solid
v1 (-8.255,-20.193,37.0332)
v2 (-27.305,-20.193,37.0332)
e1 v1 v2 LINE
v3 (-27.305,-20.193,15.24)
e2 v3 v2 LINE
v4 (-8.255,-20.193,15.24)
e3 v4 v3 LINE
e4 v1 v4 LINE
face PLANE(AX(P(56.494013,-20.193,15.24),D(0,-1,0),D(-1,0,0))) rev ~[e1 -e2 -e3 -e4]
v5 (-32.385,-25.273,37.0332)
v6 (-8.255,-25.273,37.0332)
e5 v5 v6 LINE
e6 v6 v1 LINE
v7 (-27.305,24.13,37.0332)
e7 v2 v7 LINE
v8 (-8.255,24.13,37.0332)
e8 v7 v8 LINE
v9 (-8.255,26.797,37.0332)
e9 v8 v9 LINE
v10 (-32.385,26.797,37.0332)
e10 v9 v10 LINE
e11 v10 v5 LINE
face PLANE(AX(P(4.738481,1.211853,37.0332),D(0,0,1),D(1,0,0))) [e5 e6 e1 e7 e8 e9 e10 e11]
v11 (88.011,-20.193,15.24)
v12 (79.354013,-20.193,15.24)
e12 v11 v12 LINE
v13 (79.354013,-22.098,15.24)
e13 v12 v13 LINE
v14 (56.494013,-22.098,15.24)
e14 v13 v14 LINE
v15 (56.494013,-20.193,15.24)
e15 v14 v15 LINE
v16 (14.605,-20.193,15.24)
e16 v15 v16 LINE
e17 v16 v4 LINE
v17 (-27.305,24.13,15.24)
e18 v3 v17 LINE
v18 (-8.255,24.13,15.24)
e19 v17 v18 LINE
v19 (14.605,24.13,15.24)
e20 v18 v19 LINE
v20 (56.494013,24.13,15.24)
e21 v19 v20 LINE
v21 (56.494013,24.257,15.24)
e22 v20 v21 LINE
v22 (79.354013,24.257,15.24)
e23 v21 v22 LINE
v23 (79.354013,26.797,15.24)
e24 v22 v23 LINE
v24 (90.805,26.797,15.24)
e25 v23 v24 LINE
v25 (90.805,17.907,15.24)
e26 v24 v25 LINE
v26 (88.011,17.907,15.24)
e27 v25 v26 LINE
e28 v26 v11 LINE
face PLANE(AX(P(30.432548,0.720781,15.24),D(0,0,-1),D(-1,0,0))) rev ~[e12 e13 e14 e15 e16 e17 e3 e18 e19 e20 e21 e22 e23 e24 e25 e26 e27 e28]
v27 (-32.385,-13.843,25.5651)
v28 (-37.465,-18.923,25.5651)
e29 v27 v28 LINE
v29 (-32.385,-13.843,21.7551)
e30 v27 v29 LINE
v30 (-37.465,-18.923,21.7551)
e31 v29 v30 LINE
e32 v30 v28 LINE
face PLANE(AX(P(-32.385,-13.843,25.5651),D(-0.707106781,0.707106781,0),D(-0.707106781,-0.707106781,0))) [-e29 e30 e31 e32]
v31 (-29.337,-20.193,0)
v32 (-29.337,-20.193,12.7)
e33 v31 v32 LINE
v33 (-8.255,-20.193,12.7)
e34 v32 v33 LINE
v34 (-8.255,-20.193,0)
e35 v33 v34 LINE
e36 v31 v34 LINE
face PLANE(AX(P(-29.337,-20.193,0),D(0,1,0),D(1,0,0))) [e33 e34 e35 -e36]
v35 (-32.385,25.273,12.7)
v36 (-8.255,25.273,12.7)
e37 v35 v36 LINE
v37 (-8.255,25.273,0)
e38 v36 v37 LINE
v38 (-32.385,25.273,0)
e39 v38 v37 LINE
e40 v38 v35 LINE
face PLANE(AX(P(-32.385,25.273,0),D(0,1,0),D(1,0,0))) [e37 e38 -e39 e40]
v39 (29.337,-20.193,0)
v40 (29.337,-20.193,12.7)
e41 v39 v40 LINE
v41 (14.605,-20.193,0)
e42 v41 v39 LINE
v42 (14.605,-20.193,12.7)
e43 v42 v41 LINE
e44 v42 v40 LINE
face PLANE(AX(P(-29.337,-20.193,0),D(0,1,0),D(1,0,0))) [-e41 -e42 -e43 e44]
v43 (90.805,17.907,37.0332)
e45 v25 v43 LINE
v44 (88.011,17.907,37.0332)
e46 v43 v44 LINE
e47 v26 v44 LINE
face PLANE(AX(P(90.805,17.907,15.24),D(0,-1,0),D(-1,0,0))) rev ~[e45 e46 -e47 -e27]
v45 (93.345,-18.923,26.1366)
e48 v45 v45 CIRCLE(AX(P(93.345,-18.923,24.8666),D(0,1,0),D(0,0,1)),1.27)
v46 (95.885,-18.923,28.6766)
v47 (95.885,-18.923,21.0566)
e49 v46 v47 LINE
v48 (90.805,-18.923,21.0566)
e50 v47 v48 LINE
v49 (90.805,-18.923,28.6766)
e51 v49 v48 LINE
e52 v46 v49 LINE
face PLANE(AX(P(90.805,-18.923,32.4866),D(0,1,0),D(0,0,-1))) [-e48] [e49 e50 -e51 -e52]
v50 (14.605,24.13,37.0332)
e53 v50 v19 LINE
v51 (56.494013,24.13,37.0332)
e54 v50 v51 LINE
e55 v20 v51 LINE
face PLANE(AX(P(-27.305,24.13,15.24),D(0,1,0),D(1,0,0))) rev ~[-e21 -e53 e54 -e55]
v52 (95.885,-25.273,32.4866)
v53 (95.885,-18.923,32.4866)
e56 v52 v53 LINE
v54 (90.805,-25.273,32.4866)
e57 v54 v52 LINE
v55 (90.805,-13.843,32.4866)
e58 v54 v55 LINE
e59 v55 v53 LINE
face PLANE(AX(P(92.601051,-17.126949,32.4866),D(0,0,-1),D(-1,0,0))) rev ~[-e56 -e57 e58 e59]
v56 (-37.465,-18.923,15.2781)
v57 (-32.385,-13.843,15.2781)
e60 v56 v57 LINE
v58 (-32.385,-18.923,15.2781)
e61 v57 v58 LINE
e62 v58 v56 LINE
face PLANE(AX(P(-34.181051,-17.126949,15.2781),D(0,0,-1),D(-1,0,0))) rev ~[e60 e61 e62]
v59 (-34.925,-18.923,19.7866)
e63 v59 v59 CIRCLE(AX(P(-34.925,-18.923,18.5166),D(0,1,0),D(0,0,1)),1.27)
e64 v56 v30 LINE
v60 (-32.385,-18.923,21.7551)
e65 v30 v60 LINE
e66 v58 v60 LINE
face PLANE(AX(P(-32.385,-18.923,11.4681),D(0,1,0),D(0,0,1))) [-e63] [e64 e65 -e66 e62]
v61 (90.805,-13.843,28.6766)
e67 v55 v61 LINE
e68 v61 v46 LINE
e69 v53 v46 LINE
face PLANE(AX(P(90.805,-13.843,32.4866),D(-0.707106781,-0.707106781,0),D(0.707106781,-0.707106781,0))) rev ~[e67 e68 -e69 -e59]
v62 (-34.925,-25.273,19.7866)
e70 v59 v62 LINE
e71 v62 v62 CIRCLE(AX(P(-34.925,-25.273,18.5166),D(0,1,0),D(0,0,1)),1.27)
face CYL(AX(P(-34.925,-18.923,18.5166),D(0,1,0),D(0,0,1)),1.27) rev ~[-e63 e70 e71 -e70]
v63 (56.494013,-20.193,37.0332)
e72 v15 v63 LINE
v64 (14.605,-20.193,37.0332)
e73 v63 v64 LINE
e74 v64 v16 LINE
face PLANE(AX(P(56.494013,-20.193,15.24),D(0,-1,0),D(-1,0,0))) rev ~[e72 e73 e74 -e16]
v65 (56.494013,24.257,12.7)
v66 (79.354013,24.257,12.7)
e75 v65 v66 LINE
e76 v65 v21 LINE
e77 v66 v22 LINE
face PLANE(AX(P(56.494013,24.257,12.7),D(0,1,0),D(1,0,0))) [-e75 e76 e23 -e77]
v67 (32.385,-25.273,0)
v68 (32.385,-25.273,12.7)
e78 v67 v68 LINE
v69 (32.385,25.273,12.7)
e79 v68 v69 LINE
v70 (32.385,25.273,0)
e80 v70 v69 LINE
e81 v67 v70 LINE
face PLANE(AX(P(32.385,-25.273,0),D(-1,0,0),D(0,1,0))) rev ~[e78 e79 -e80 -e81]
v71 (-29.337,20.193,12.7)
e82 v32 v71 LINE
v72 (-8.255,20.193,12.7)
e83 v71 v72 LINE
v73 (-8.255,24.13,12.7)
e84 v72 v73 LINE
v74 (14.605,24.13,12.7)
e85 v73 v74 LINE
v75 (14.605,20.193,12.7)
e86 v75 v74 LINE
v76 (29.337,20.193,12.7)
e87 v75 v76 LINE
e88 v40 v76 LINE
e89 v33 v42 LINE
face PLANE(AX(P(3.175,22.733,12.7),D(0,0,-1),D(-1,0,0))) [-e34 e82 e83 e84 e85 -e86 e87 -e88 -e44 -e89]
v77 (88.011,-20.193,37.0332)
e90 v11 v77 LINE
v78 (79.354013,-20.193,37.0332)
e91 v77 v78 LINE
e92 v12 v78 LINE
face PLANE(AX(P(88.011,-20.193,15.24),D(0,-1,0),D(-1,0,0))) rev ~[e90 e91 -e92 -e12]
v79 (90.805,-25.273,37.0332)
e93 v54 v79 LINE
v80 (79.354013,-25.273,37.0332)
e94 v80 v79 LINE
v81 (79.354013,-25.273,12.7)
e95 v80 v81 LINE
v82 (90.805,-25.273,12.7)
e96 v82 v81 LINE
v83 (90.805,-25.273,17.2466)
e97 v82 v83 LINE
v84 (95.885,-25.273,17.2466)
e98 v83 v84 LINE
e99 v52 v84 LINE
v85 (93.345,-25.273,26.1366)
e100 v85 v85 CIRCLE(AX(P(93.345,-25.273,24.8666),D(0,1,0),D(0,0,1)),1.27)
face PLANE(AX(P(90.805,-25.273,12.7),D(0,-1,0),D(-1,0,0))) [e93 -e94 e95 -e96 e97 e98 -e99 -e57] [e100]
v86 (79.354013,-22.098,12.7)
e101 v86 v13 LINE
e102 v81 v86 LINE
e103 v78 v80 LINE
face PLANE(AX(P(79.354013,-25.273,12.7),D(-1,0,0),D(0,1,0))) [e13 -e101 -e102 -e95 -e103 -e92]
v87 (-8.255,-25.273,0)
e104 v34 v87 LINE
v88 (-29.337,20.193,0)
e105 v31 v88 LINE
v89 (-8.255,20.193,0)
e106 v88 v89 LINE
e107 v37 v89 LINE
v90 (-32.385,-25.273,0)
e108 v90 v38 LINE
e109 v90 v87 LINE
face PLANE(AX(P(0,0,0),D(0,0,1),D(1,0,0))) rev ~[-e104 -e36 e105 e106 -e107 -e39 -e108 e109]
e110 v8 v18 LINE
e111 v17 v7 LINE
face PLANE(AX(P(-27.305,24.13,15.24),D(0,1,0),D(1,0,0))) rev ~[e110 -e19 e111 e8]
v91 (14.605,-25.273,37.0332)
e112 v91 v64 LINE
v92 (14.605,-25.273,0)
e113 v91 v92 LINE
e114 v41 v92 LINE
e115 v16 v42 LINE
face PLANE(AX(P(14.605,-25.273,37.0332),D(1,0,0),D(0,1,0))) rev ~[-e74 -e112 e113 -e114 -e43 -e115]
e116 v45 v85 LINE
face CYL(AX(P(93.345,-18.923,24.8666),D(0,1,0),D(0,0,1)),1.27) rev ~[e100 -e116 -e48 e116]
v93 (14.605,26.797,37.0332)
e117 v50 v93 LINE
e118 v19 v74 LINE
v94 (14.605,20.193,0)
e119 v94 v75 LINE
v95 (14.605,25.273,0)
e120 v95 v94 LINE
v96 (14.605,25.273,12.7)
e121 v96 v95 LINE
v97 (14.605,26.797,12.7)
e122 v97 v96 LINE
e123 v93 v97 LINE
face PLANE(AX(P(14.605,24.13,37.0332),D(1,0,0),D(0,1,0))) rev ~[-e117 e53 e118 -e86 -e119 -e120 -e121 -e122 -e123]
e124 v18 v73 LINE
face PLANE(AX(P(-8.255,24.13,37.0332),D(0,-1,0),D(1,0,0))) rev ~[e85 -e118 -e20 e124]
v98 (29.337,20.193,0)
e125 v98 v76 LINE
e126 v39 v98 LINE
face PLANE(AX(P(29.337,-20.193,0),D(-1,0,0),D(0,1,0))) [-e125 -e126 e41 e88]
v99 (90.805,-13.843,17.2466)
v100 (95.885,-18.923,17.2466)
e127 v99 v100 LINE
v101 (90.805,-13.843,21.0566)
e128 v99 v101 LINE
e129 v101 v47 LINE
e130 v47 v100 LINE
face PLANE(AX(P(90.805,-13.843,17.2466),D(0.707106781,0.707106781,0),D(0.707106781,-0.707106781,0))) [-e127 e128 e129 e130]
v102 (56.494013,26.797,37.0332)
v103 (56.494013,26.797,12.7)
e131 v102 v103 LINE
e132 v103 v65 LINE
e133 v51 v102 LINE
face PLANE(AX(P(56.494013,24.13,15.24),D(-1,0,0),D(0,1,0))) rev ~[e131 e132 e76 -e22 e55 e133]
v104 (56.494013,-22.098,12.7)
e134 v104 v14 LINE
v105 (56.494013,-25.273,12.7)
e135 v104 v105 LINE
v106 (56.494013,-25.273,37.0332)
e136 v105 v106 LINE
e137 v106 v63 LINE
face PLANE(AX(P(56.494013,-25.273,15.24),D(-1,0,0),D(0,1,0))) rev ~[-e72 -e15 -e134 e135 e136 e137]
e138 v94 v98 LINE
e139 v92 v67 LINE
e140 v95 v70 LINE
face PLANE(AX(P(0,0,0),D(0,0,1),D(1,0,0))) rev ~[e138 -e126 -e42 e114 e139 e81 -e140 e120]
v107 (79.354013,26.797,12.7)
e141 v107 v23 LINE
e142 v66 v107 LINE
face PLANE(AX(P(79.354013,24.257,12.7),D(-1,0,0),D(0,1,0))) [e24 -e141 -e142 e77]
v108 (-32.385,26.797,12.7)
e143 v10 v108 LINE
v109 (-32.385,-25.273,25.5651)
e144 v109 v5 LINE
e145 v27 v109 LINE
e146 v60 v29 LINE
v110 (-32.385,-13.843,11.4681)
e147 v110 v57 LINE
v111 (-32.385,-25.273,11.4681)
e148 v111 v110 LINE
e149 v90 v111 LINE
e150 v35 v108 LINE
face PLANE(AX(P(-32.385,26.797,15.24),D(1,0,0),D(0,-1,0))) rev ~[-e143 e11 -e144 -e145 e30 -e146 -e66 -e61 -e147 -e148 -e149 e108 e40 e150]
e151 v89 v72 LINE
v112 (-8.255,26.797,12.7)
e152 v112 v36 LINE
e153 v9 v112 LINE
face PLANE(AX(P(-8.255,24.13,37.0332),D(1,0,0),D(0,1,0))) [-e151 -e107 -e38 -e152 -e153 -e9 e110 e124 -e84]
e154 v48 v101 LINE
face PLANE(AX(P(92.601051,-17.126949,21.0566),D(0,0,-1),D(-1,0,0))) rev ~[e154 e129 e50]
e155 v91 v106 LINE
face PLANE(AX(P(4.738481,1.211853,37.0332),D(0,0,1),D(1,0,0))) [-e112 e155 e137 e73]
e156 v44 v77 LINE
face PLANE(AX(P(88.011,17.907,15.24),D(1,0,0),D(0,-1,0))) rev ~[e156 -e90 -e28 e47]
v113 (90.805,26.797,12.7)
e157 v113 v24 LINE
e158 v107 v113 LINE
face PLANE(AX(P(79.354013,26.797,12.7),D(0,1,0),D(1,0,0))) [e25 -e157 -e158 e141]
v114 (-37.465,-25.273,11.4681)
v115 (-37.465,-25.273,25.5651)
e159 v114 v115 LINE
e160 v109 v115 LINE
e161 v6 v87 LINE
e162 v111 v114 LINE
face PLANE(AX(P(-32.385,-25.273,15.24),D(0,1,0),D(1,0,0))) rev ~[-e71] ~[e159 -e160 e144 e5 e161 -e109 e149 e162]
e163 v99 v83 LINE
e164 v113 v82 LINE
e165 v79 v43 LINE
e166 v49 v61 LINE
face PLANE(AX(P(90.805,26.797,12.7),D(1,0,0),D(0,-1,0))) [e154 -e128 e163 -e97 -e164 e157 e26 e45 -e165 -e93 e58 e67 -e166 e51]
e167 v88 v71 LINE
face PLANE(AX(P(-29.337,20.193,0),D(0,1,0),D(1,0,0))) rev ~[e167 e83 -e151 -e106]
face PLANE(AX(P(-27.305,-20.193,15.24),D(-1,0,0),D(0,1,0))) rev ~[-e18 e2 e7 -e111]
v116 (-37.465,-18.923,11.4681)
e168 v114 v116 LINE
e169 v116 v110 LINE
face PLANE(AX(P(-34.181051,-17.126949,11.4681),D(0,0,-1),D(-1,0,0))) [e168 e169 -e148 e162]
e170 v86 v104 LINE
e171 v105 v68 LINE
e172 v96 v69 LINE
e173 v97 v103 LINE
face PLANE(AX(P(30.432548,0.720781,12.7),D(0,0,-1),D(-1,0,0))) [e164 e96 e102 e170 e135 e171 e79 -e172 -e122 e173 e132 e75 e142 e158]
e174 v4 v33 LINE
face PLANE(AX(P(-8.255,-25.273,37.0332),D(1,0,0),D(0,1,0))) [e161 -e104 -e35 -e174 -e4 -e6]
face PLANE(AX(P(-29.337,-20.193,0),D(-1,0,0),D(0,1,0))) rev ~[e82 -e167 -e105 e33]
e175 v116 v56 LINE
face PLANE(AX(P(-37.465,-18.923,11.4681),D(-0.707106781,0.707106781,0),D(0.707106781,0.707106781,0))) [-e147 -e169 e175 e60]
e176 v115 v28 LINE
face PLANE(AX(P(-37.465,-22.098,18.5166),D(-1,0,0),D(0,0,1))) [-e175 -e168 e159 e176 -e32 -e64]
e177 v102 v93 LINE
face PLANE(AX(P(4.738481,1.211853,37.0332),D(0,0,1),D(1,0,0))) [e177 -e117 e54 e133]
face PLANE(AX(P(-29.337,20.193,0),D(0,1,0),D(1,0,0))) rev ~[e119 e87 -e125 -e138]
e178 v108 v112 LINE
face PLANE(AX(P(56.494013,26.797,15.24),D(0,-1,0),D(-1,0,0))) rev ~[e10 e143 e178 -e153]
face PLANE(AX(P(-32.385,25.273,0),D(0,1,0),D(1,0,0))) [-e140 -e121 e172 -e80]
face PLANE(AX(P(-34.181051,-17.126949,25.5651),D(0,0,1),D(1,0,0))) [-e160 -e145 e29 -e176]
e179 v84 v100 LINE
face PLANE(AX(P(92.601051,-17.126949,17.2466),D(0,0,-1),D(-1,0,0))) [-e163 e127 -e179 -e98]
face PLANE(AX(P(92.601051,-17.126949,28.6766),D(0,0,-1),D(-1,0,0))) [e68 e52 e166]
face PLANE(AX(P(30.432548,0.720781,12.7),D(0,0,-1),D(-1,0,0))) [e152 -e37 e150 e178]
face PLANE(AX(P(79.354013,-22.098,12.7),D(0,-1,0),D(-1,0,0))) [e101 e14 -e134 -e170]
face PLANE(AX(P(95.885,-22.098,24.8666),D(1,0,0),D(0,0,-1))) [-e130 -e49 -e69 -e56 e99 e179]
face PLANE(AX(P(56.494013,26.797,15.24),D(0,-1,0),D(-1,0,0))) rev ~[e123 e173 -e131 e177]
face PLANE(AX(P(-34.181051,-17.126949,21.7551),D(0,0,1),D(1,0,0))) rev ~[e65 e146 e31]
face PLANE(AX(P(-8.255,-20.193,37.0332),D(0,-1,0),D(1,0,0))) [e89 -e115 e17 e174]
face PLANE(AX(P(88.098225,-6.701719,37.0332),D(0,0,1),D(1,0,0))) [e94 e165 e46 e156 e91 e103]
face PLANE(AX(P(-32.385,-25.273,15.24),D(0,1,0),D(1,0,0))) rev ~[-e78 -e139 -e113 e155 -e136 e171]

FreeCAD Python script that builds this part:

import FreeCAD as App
import Part
import Sketcher
from FreeCAD import Vector
Q = App.Units.Quantity

doc = App.newDocument("Part")
body = doc.addObject("PartDesign::Body", "Body")

sketch1 = body.newObject("Sketcher::SketchObject", "Sketch")
sketch1.AttachmentSupport = (doc.getObject("XY_Plane"), [""])
sketch1.MapMode = "FlatFace"
sketch1.addGeometry(Part.LineSegment(Vector(-32.385, 25.273, 0), Vector(-32.385, -25.273, 0)), False)
sketch1.addGeometry(Part.LineSegment(Vector(-32.385, -25.273, 0), Vector(32.385, -25.273, 0)), False)
sketch1.addGeometry(Part.LineSegment(Vector(32.385, -25.273, 0), Vector(32.385, 25.273, 0)), False)
sketch1.addGeometry(Part.LineSegment(Vector(32.385, 25.273, 0), Vector(-32.385, 25.273, 0)), False)
sketch1.addGeometry(Part.LineSegment(Vector(29.337, -20.193, 0), Vector(-29.337, -20.193, 0)), False)
sketch1.addGeometry(Part.LineSegment(Vector(-29.337, -20.193, 0), Vector(-29.337, 20.193, 0)), False)
sketch1.addGeometry(Part.LineSegment(Vector(-29.337, 20.193, 0), Vector(29.337, 20.193, 0)), False)
sketch1.addGeometry(Part.LineSegment(Vector(29.337, 20.193, 0), Vector(29.337, -20.193, 0)), False)
sketch1.addConstraint(Sketcher.Constraint("Coincident", 0, 2, 1, 1))
sketch1.addConstraint(Sketcher.Constraint("Coincident", 1, 2, 2, 1))
sketch1.addConstraint(Sketcher.Constraint("Coincident", 2, 2, 3, 1))
sketch1.addConstraint(Sketcher.Constraint("Coincident", 3, 2, 0, 1))
sketch1.addConstraint(Sketcher.Constraint("Coincident", 4, 2, 5, 1))
sketch1.addConstraint(Sketcher.Constraint("Coincident", 5, 2, 6, 1))
sketch1.addConstraint(Sketcher.Constraint("Coincident", 6, 2, 7, 1))
sketch1.addConstraint(Sketcher.Constraint("Coincident", 7, 2, 4, 1))
sketch1.addConstraint(Sketcher.Constraint("Vertical", 0))
sketch1.addConstraint(Sketcher.Constraint("Horizontal", 1))
sketch1.addConstraint(Sketcher.Constraint("Vertical", 2))
sketch1.addConstraint(Sketcher.Constraint("Horizontal", 3))
sketch1.addConstraint(Sketcher.Constraint("Horizontal", 4))
sketch1.addConstraint(Sketcher.Constraint("Vertical", 5))
sketch1.addConstraint(Sketcher.Constraint("Horizontal", 6))
sketch1.addConstraint(Sketcher.Constraint("Vertical", 7))
sketch1.addConstraint(Sketcher.Constraint("Symmetric", 0, 2, 2, 2, -1, 1))
sketch1.addConstraint(Sketcher.Constraint("Symmetric", 4, 2, 6, 2, -1, 1))
sketch1.addConstraint(Sketcher.Constraint("DistanceX", 1, 1, 1, 2, Q("2.55 in")))
sketch1.addConstraint(Sketcher.Constraint("DistanceX", 4, 2, 4, 1, Q("2.31 in")))
sketch1.addConstraint(Sketcher.Constraint("DistanceY", 0, 2, 0, 1, Q("1.99 in")))
sketch1.addConstraint(Sketcher.Constraint("DistanceY", 5, 1, 5, 2, Q("1.59 in")))
pad1 = body.newObject("PartDesign::Pad", "Pad")
pad1.Profile = sketch1
pad1.Length = Q("0.5 in")

sketch2 = body.newObject("Sketcher::SketchObject", "Sketch001")
sketch2.AttachmentSupport = (doc.getObject("XY_Plane"), [""])
sketch2.MapMode = "FlatFace"
sketch2.AttachmentOffset = App.Placement(Vector(0, 0, 0.5 * 25.4), App.Rotation())
sketch2.addGeometry(Part.LineSegment(Vector(79.354013, -22.098, 0), Vector(79.354013, -25.273, 0)), False)
sketch2.addGeometry(Part.LineSegment(Vector(79.354013, -25.273, 0), Vector(90.805, -25.273, 0)), False)
sketch2.addGeometry(Part.LineSegment(Vector(90.805, -25.273, 0), Vector(90.805, 26.797, 0)), False)
sketch2.addGeometry(Part.LineSegment(Vector(90.805, 26.797, 0), Vector(79.354013, 26.797, 0)), False)
sketch2.addGeometry(Part.LineSegment(Vector(79.354013, 26.797, 0), Vector(79.354013, 24.257, 0)), False)
sketch2.addGeometry(Part.LineSegment(Vector(79.354013, 24.257, 0), Vector(56.494013, 24.257, 0)), False)
sketch2.addGeometry(Part.LineSegment(Vector(56.494013, 24.257, 0), Vector(56.494013, 26.797, 0)), False)
sketch2.addGeometry(Part.LineSegment(Vector(56.494013, 26.797, 0), Vector(-32.385, 26.797, 0)), False)
sketch2.addGeometry(Part.LineSegment(Vector(-32.385, 26.797, 0), Vector(-32.385, -25.273, 0)), False)
sketch2.addGeometry(Part.LineSegment(Vector(-32.385, -25.273, 0), Vector(56.494013, -25.273, 0)), False)
sketch2.addGeometry(Part.LineSegment(Vector(56.494013, -25.273, 0), Vector(56.494013, -22.098, 0)), False)
sketch2.addGeometry(Part.LineSegment(Vector(56.494013, -22.098, 0), Vector(79.354013, -22.098, 0)), False)
sketch2.addConstraint(Sketcher.Constraint("Coincident", 0, 2, 1, 1))
sketch2.addConstraint(Sketcher.Constraint("Coincident", 1, 2, 2, 1))
sketch2.addConstraint(Sketcher.Constraint("Coincident", 2, 2, 3, 1))
sketch2.addConstraint(Sketcher.Constraint("Coincident", 3, 2, 4, 1))
sketch2.addConstraint(Sketcher.Constraint("Coincident", 4, 2, 5, 1))
sketch2.addConstraint(Sketcher.Constraint("Coincident", 5, 2, 6, 1))
sketch2.addConstraint(Sketcher.Constraint("Coincident", 6, 2, 7, 1))
sketch2.addConstraint(Sketcher.Constraint("Coincident", 7, 2, 8, 1))
sketch2.addConstraint(Sketcher.Constraint("Coincident", 8, 2, 9, 1))
sketch2.addConstraint(Sketcher.Constraint("Coincident", 9, 2, 10, 1))
sketch2.addConstraint(Sketcher.Constraint("Coincident", 10, 2, 11, 1))
sketch2.addConstraint(Sketcher.Constraint("Coincident", 11, 2, 0, 1))
sketch2.addConstraint(Sketcher.Constraint("Vertical", 0))
sketch2.addConstraint(Sketcher.Constraint("Horizontal", 1))
sketch2.addConstraint(Sketcher.Constraint("Vertical", 2))
sketch2.addConstraint(Sketcher.Constraint("Horizontal", 3))
sketch2.addConstraint(Sketcher.Constraint("Vertical", 4))
sketch2.addConstraint(Sketcher.Constraint("Horizontal", 5))
sketch2.addConstraint(Sketcher.Constraint("Vertical", 6))
sketch2.addConstraint(Sketcher.Constraint("Horizontal", 7))
sketch2.addConstraint(Sketcher.Constraint("Vertical", 8))
sketch2.addConstraint(Sketcher.Constraint("Horizontal", 9))
sketch2.addConstraint(Sketcher.Constraint("Vertical", 10))
sketch2.addConstraint(Sketcher.Constraint("Horizontal", 11))
sketch2.addConstraint(Sketcher.Constraint("Horizontal", 3, 2, 6, 2))
sketch2.addConstraint(Sketcher.Constraint("Horizontal", 1, 2, 8, 2))
sketch2.addConstraint(Sketcher.Constraint("Vertical", 0, 2, 3, 2))
sketch2.addConstraint(Sketcher.Constraint("Vertical", 6, 2, 9, 2))
sketch2.addConstraint(Sketcher.Constraint("DistanceX", 5, 2, 5, 1, Q("0.9 in")))
sketch2.addConstraint(Sketcher.Constraint("DistanceY", 4, 2, 4, 1, Q("0.1 in")))
sketch2.addConstraint(Sketcher.Constraint("DistanceY", 2, 1, 2, 2, Q("2.05 in")))
sketch2.addConstraint(Sketcher.Constraint("DistanceY", 0, 2, 0, 1, Q("0.125 in")))
sketch2.addConstraint(Sketcher.Constraint("DistanceY", 10, 2, -1, 1, Q("0.87 in")))
sketch2.addConstraint(Sketcher.Constraint("DistanceX", 7, 2, 2, 2, Q("4.85 in")))
sketch2.addConstraint(Sketcher.Constraint("DistanceX", -1, 1, 1, 2, Q("3.575 in")))
sketch2.addConstraint(Sketcher.Constraint("DistanceX", 1, 1, 1, 2, 11.450987))
pad2 = body.newObject("PartDesign::Pad", "Pad001")
pad2.Profile = sketch2
pad2.Length = Q("0.1 in")

sketch3 = body.newObject("Sketcher::SketchObject", "Sketch002")
sketch3.AttachmentSupport = (doc.getObject("XY_Plane"), [""])
sketch3.MapMode = "FlatFace"
sketch3.AttachmentOffset = App.Placement(Vector(0, 0, 0.6 * 25.4), App.Rotation())
sketch3.addGeometry(Part.LineSegment(Vector(-32.385, 26.797, 0), Vector(-32.385, -25.273, 0)), False)
sketch3.addGeometry(Part.LineSegment(Vector(-32.385, -25.273, 0), Vector(56.494013, -25.273, 0)), False)
sketch3.addGeometry(Part.LineSegment(Vector(56.494013, -25.273, 0), Vector(56.494013, -20.193, 0)), False)
sketch3.addGeometry(Part.LineSegment(Vector(56.494013, -20.193, 0), Vector(-27.305, -20.193, 0)), False)
sketch3.addGeometry(Part.LineSegment(Vector(-27.305, -20.193, 0), Vector(-27.305, 24.13, 0)), False)
sketch3.addGeometry(Part.LineSegment(Vector(-27.305, 24.13, 0), Vector(56.494013, 24.13, 0)), False)
sketch3.addGeometry(Part.LineSegment(Vector(56.494013, 24.13, 0), Vector(56.494013, 26.797, 0)), False)
sketch3.addGeometry(Part.LineSegment(Vector(56.494013, 26.797, 0), Vector(-32.385, 26.797, 0)), False)
sketch3.addGeometry(Part.LineSegment(Vector(79.354013, -20.193, 0), Vector(79.354013, -25.273, 0)), False)
sketch3.addGeometry(Part.LineSegment(Vector(79.354013, -25.273, 0), Vector(90.805, -25.273, 0)), False)
sketch3.addGeometry(Part.LineSegment(Vector(90.805, -25.273, 0), Vector(90.805, 17.907, 0)), False)
sketch3.addGeometry(Part.LineSegment(Vector(90.805, 17.907, 0), Vector(88.011, 17.907, 0)), False)
sketch3.addGeometry(Part.LineSegment(Vector(88.011, 17.907, 0), Vector(88.011, -20.193, 0)), False)
sketch3.addGeometry(Part.LineSegment(Vector(88.011, -20.193, 0), Vector(79.354013, -20.193, 0)), False)
sketch3.addConstraint(Sketcher.Constraint("Coincident", 0, 2, 1, 1))
sketch3.addConstraint(Sketcher.Constraint("Coincident", 1, 2, 2, 1))
sketch3.addConstraint(Sketcher.Constraint("Coincident", 2, 2, 3, 1))
sketch3.addConstraint(Sketcher.Constraint("Coincident", 3, 2, 4, 1))
sketch3.addConstraint(Sketcher.Constraint("Coincident", 4, 2, 5, 1))
sketch3.addConstraint(Sketcher.Constraint("Coincident", 5, 2, 6, 1))
sketch3.addConstraint(Sketcher.Constraint("Coincident", 6, 2, 7, 1))
sketch3.addConstraint(Sketcher.Constraint("Coincident", 7, 2, 0, 1))
sketch3.addConstraint(Sketcher.Constraint("Coincident", 8, 2, 9, 1))
sketch3.addConstraint(Sketcher.Constraint("Coincident", 9, 2, 10, 1))
sketch3.addConstraint(Sketcher.Constraint("Coincident", 10, 2, 11, 1))
sketch3.addConstraint(Sketcher.Constraint("Coincident", 11, 2, 12, 1))
sketch3.addConstraint(Sketcher.Constraint("Coincident", 12, 2, 13, 1))
sketch3.addConstraint(Sketcher.Constraint("Coincident", 13, 2, 8, 1))
sketch3.addConstraint(Sketcher.Constraint("Vertical", 0))
sketch3.addConstraint(Sketcher.Constraint("Horizontal", 1))
sketch3.addConstraint(Sketcher.Constraint("Vertical", 2))
sketch3.addConstraint(Sketcher.Constraint("Horizontal", 3))
sketch3.addConstraint(Sketcher.Constraint("Vertical", 4))
sketch3.addConstraint(Sketcher.Constraint("Horizontal", 5))
sketch3.addConstraint(Sketcher.Constraint("Vertical", 6))
sketch3.addConstraint(Sketcher.Constraint("Horizontal", 7))
sketch3.addConstraint(Sketcher.Constraint("Vertical", 8))
sketch3.addConstraint(Sketcher.Constraint("Horizontal", 9))
sketch3.addConstraint(Sketcher.Constraint("Vertical", 10))
sketch3.addConstraint(Sketcher.Constraint("Horizontal", 11))
sketch3.addConstraint(Sketcher.Constraint("Vertical", 12))
sketch3.addConstraint(Sketcher.Constraint("Horizontal", 13))
sketch3.addConstraint(Sketcher.Constraint("Horizontal", 1, 2, 8, 2))
sketch3.addConstraint(Sketcher.Constraint("Horizontal", 3, 2, 12, 2))
sketch3.addConstraint(Sketcher.Constraint("Vertical", 2, 2, 5, 2))
sketch3.addConstraint(Sketcher.Constraint("DistanceY", 2, 1, 2, 2, Q("0.2 in")))
sketch3.addConstraint(Sketcher.Constraint("DistanceY", 10, 1, 10, 2, Q("1.7 in")))
sketch3.addConstraint(Sketcher.Constraint("DistanceX", 11, 2, 11, 1, Q("0.11 in")))
sketch3.addConstraint(Sketcher.Constraint("DistanceY", 0, 2, 0, 1, Q("2.05 in")))
sketch3.addConstraint(Sketcher.Constraint("DistanceX", 0, 2, 3, 2, Q("0.2 in")))
sketch3.addConstraint(Sketcher.Constraint("DistanceX", 1, 2, 8, 2, Q("0.9 in")))
sketch3.addConstraint(Sketcher.Constraint("DistanceY", 4, 1, 4, 2, Q("1.745 in")))
sketch3.addConstraint(Sketcher.Constraint("DistanceY", -1, 1, 4, 2, Q("0.95 in")))
sketch3.addConstraint(Sketcher.Constraint("DistanceX", 0, 2, -1, 1, Q("1.275 in")))
sketch3.addConstraint(Sketcher.Constraint("DistanceX", -1, 1, 9, 2, Q("3.575 in")))
sketch3.addConstraint(Sketcher.Constraint("DistanceX", 1, 1, 1, 2, 88.879013))
pad3 = body.newObject("PartDesign::Pad", "Pad002")
pad3.Profile = sketch3
pad3.Length = Q("0.858 in")

sketch4 = body.newObject("Sketcher::SketchObject", "Sketch003")
sketch4.AttachmentSupport = (doc.getObject("XY_Plane"), [""])
sketch4.MapMode = "FlatFace"
sketch4.AttachmentOffset = App.Placement(Vector(0, 0, 1.458 * 25.4), App.Rotation())
sketch4.addGeometry(Part.LineSegment(Vector(-8.255, 26.797, 0), Vector(-8.255, 24.13, 0)), False)
sketch4.addGeometry(Part.LineSegment(Vector(-8.255, 24.13, 0), Vector(14.605, 24.13, 0)), False)
sketch4.addGeometry(Part.LineSegment(Vector(14.605, 24.13, 0), Vector(14.605, 26.797, 0)), False)
sketch4.addGeometry(Part.LineSegment(Vector(14.605, 26.797, 0), Vector(-8.255, 26.797, 0)), False)
sketch4.addGeometry(Part.LineSegment(Vector(-8.255, -20.193, 0), Vector(-8.255, -25.273, 0)), False)
sketch4.addGeometry(Part.LineSegment(Vector(-8.255, -25.273, 0), Vector(14.605, -25.273, 0)), False)
sketch4.addGeometry(Part.LineSegment(Vector(14.605, -25.273, 0), Vector(14.605, -20.193, 0)), False)
sketch4.addGeometry(Part.LineSegment(Vector(14.605, -20.193, 0), Vector(-8.255, -20.193, 0)), False)
sketch4.addConstraint(Sketcher.Constraint("Coincident", 0, 2, 1, 1))
sketch4.addConstraint(Sketcher.Constraint("Coincident", 1, 2, 2, 1))
sketch4.addConstraint(Sketcher.Constraint("Coincident", 2, 2, 3, 1))
sketch4.addConstraint(Sketcher.Constraint("Coincident", 3, 2, 0, 1))
sketch4.addConstraint(Sketcher.Constraint("Coincident", 4, 2, 5, 1))
sketch4.addConstraint(Sketcher.Constraint("Coincident", 5, 2, 6, 1))
sketch4.addConstraint(Sketcher.Constraint("Coincident", 6, 2, 7, 1))
sketch4.addConstraint(Sketcher.Constraint("Coincident", 7, 2, 4, 1))
sketch4.addConstraint(Sketcher.Constraint("Vertical", 0))
sketch4.addConstraint(Sketcher.Constraint("Horizontal", 1))
sketch4.addConstraint(Sketcher.Constraint("Vertical", 2))
sketch4.addConstraint(Sketcher.Constraint("Horizontal", 3))
sketch4.addConstraint(Sketcher.Constraint("Vertical", 4))
sketch4.addConstraint(Sketcher.Constraint("Horizontal", 5))
sketch4.addConstraint(Sketcher.Constraint("Vertical", 6))
sketch4.addConstraint(Sketcher.Constraint("Horizontal", 7))
sketch4.addConstraint(Sketcher.Constraint("Vertical", 3, 2, 4, 2))
sketch4.addConstraint(Sketcher.Constraint("Vertical", 2, 2, 5, 2))
sketch4.addConstraint(Sketcher.Constraint("DistanceX", 1, 1, 1, 2, Q("0.9 in")))
sketch4.addConstraint(Sketcher.Constraint("DistanceY", 4, 2, 4, 1, Q("0.2 in")))
sketch4.addConstraint(Sketcher.Constraint("DistanceY", 0, 2, 0, 1, Q("0.105 in")))
sketch4.addConstraint(Sketcher.Constraint("DistanceY", -1, 1, 0, 2, Q("0.95 in")))
sketch4.addConstraint(Sketcher.Constraint("DistanceY", 4, 2, 3, 2, Q("2.05 in")))
sketch4.addConstraint(Sketcher.Constraint("DistanceX", 0, 2, -1, 1, Q("0.325 in")))
pocket1 = body.newObject("PartDesign::Pocket", "Pocket")
pocket1.Profile = sketch4
pocket1.Type = "ThroughAll"

sketch5 = body.newObject("Sketcher::SketchObject", "Sketch004")
sketch5.AttachmentSupport = (doc.getObject("XY_Plane"), [""])
sketch5.MapMode = "FlatFace"
sketch5.addGeometry(Part.LineSegment(Vector(14.605, 25.273, 0), Vector(14.605, 20.193, 0)), False)
sketch5.addGeometry(Part.LineSegment(Vector(14.605, 20.193, 0), Vector(-8.255, 20.193, 0)), False)
sketch5.addGeometry(Part.LineSegment(Vector(-8.255, 20.193, 0), Vector(-8.255, 25.273, 0)), False)
sketch5.addGeometry(Part.LineSegment(Vector(-8.255, 25.273, 0), Vector(14.605, 25.273, 0)), False)
sketch5.addGeometry(Part.LineSegment(Vector(14.605, -20.193, 0), Vector(14.605, -21.336, 0)), False)
sketch5.addGeometry(Part.LineSegment(Vector(14.605, -21.336, 0), Vector(-8.255, -21.336, 0)), False)
sketch5.addGeometry(Part.LineSegment(Vector(-8.255, -21.336, 0), Vector(-8.255, -20.193, 0)), False)
sketch5.addGeometry(Part.LineSegment(Vector(-8.255, -20.193, 0), Vector(14.605, -20.193, 0)), False)
sketch5.addConstraint(Sketcher.Constraint("Coincident", 0, 2, 1, 1))
sketch5.addConstraint(Sketcher.Constraint("Coincident", 1, 2, 2, 1))
sketch5.addConstraint(Sketcher.Constraint("Coincident", 2, 2, 3, 1))
sketch5.addConstraint(Sketcher.Constraint("Coincident", 3, 2, 0, 1))
sketch5.addConstraint(Sketcher.Constraint("Coincident", 4, 2, 5, 1))
sketch5.addConstraint(Sketcher.Constraint("Coincident", 5, 2, 6, 1))
sketch5.addConstraint(Sketcher.Constraint("Coincident", 6, 2, 7, 1))
sketch5.addConstraint(Sketcher.Constraint("Coincident", 7, 2, 4, 1))
sketch5.addConstraint(Sketcher.Constraint("Vertical", 0))
sketch5.addConstraint(Sketcher.Constraint("Horizontal", 1))
sketch5.addConstraint(Sketcher.Constraint("Vertical", 2))
sketch5.addConstraint(Sketcher.Constraint("Horizontal", 3))
sketch5.addConstraint(Sketcher.Constraint("Vertical", 4))
sketch5.addConstraint(Sketcher.Constraint("Horizontal", 5))
sketch5.addConstraint(Sketcher.Constraint("Vertical", 6))
sketch5.addConstraint(Sketcher.Constraint("Horizontal", 7))
sketch5.addConstraint(Sketcher.Constraint("Symmetric", 1, 2, 6, 2, -1))
sketch5.addConstraint(Sketcher.Constraint("Vertical", 3, 2, 4, 2))
sketch5.addConstraint(Sketcher.Constraint("DistanceX", 1, 2, 1, 1, Q("0.9 in")))
sketch5.addConstraint(Sketcher.Constraint("DistanceY", 0, 2, 0, 1, Q("0.2 in")))
sketch5.addConstraint(Sketcher.Constraint("DistanceY", 4, 2, 4, 1, Q("0.045 in")))
sketch5.addConstraint(Sketcher.Constraint("DistanceY", 4, 2, -1, 1, Q("0.84 in")))
sketch5.addConstraint(Sketcher.Constraint("DistanceX", -1, 1, 0, 2, Q("0.575 in")))
pocket2 = body.newObject("PartDesign::Pocket", "Pocket001")
pocket2.Profile = sketch5
pocket2.Length = Q("0.5 in")
pocket2.Reversed = True

sketch6 = body.newObject("Sketcher::SketchObject", "Sketch005")
sketch6.AttachmentSupport = (doc.getObject("YZ_Plane"), [""])
sketch6.MapMode = "FlatFace"
sketch6.AttachmentOffset = App.Placement(Vector(0, 0, -1.275 * 25.4), App.Rotation())
sketch6.addGeometry(Part.LineSegment(Vector(-18.923, 11.4681, 0), Vector(-25.273, 11.4681, 0)), False)
sketch6.addGeometry(Part.LineSegment(Vector(-25.273, 11.4681, 0), Vector(-25.273, 25.5651, 0)), False)
sketch6.addGeometry(Part.LineSegment(Vector(-25.273, 25.5651, 0), Vector(-18.923, 25.5651, 0)), False)
sketch6.addGeometry(Part.LineSegment(Vector(-18.923, 25.5651, 0), Vector(-18.923, 11.4681, 0)), False)
sketch6.addConstraint(Sketcher.Constraint("Coincident", 0, 2, 1, 1))
sketch6.addConstraint(Sketcher.Constraint("Coincident", 1, 2, 2, 1))
sketch6.addConstraint(Sketcher.Constraint("Coincident", 2, 2, 3, 1))
sketch6.addConstraint(Sketcher.Constraint("Coincident", 3, 2, 0, 1))
sketch6.addConstraint(Sketcher.Constraint("Horizontal", 0))
sketch6.addConstraint(Sketcher.Constraint("Vertical", 1))
sketch6.addConstraint(Sketcher.Constraint("Horizontal", 2))
sketch6.addConstraint(Sketcher.Constraint("Vertical", 3))
sketch6.addConstraint(Sketcher.Constraint("DistanceX", 0, 2, 0, 1, Q("0.25 in")))
sketch6.addConstraint(Sketcher.Constraint("DistanceY", 1, 1, 1, 2, Q("0.555 in")))
sketch6.addConstraint(Sketcher.Constraint("DistanceX", 0, 2, -1, 1, Q("0.995 in")))
sketch6.addConstraint(Sketcher.Constraint("DistanceY", -1, 1, 0, 2, Q("0.4515 in")))
pad4 = body.newObject("PartDesign::Pad", "Pad003")
pad4.Profile = sketch6
pad4.Length = Q("0.2 in")
pad4.Reversed = True

sketch7 = body.newObject("Sketcher::SketchObject", "Sketch006")
sketch7.AttachmentSupport = (doc.getObject("XY_Plane"), [""])
sketch7.MapMode = "FlatFace"
sketch7.AttachmentOffset = App.Placement(Vector(0, 0, 1.0065 * 25.4), App.Rotation())
sketch7.addGeometry(Part.LineSegment(Vector(-37.465, -18.923, 0), Vector(-32.385, -18.923, 0)), False)
sketch7.addGeometry(Part.LineSegment(Vector(-32.385, -18.923, 0), Vector(-32.385, -13.843, 0)), False)
sketch7.addGeometry(Part.LineSegment(Vector(-32.385, -13.843, 0), Vector(-37.465, -18.923, 0)), False)
sketch7.addConstraint(Sketcher.Constraint("Coincident", 0, 2, 1, 1))
sketch7.addConstraint(Sketcher.Constraint("Coincident", 1, 2, 2, 1))
sketch7.addConstraint(Sketcher.Constraint("Coincident", 2, 2, 0, 1))
sketch7.addConstraint(Sketcher.Constraint("Horizontal", 0))
sketch7.addConstraint(Sketcher.Constraint("Vertical", 1))
sketch7.addConstraint(Sketcher.Constraint("Equal", 0, 1))
sketch7.addConstraint(Sketcher.Constraint("DistanceX", 0, 1, 0, 2, Q("0.2 in")))
sketch7.addConstraint(Sketcher.Constraint("DistanceX", 0, 2, -1, 1, Q("1.275 in")))
sketch7.addConstraint(Sketcher.Constraint("DistanceY", 0, 2, -1, 1, Q("0.745 in")))
pad5 = body.newObject("PartDesign::Pad", "Pad004")
pad5.Profile = sketch7
pad5.Length = Q("0.15 in")
pad5.Reversed = True

sketch8 = body.newObject("Sketcher::SketchObject", "Sketch007")
sketch8.AttachmentSupport = (doc.getObject("XZ_Plane"), [""])
sketch8.MapMode = "FlatFace"
sketch8.AttachmentOffset = App.Placement(Vector(0, 0, 0.745 * 25.4), App.Rotation())
sketch8.addGeometry(Part.Circle(Vector(-34.925, 18.5166, 0), Vector(0, 0, 1), 1.27), False)
sketch8.addConstraint(Sketcher.Constraint("Diameter", 0, Q("0.1 in")))
sketch8.addConstraint(Sketcher.Constraint("DistanceX", 0, 3, -1, 1, Q("1.375 in")))
sketch8.addConstraint(Sketcher.Constraint("DistanceY", -1, 1, 0, 3, Q("0.729 in")))
pocket3 = body.newObject("PartDesign::Pocket", "Pocket002")
pocket3.Profile = sketch8
pocket3.Type = "ThroughAll"
pocket3.Reversed = True

sketch9 = body.newObject("Sketcher::SketchObject", "Sketch008")
sketch9.AttachmentSupport = (doc.getObject("XY_Plane"), [""])
sketch9.MapMode = "FlatFace"
sketch9.AttachmentOffset = App.Placement(Vector(0, 0, 0.4515 * 25.4), App.Rotation())
sketch9.addGeometry(Part.LineSegment(Vector(-32.385, -13.843, 0), Vector(-32.385, -18.923, 0)), False)
sketch9.addGeometry(Part.LineSegment(Vector(-32.385, -18.923, 0), Vector(-37.465, -18.923, 0)), False)
sketch9.addGeometry(Part.LineSegment(Vector(-37.465, -18.923, 0), Vector(-32.385, -13.843, 0)), False)
sketch9.addConstraint(Sketcher.Constraint("Coincident", 0, 2, 1, 1))
sketch9.addConstraint(Sketcher.Constraint("Coincident", 1, 2, 2, 1))
sketch9.addConstraint(Sketcher.Constraint("Coincident", 2, 2, 0, 1))
sketch9.addConstraint(Sketcher.Constraint("Vertical", 0))
sketch9.addConstraint(Sketcher.Constraint("Horizontal", 1))
sketch9.addConstraint(Sketcher.Constraint("Equal", 1, 0))
sketch9.addConstraint(Sketcher.Constraint("DistanceX", 1, 2, 1, 1, Q("0.2 in")))
sketch9.addConstraint(Sketcher.Constraint("DistanceX", 0, 2, -1, 1, Q("1.275 in")))
sketch9.addConstraint(Sketcher.Constraint("DistanceY", 0, 2, -1, 1, Q("0.745 in")))
pad6 = body.newObject("PartDesign::Pad", "Pad005")
pad6.Profile = sketch9
pad6.Length = Q("0.15 in")

sketch10 = body.newObject("Sketcher::SketchObject", "Sketch009")
sketch10.AttachmentSupport = (doc.getObject("YZ_Plane"), [""])
sketch10.MapMode = "FlatFace"
sketch10.AttachmentOffset = App.Placement(Vector(0, 0, 3.575 * 25.4), App.Rotation())
sketch10.addGeometry(Part.LineSegment(Vector(-18.923, 32.4866, 0), Vector(-25.273, 32.4866, 0)), False)
sketch10.addGeometry(Part.LineSegment(Vector(-25.273, 32.4866, 0), Vector(-25.273, 17.2466, 0)), False)
sketch10.addGeometry(Part.LineSegment(Vector(-25.273, 17.2466, 0), Vector(-18.923, 17.2466, 0)), False)
sketch10.addGeometry(Part.LineSegment(Vector(-18.923, 17.2466, 0), Vector(-18.923, 32.4866, 0)), False)
sketch10.addConstraint(Sketcher.Constraint("Coincident", 0, 2, 1, 1))
sketch10.addConstraint(Sketcher.Constraint("Coincident", 1, 2, 2, 1))
sketch10.addConstraint(Sketcher.Constraint("Coincident", 2, 2, 3, 1))
sketch10.addConstraint(Sketcher.Constraint("Coincident", 3, 2, 0, 1))
sketch10.addConstraint(Sketcher.Constraint("Horizontal", 0))
sketch10.addConstraint(Sketcher.Constraint("Vertical", 1))
sketch10.addConstraint(Sketcher.Constraint("Horizontal", 2))
sketch10.addConstraint(Sketcher.Constraint("Vertical", 3))
sketch10.addConstraint(Sketcher.Constraint("DistanceY", 1, 2, 1, 1, Q("0.6 in")))
sketch10.addConstraint(Sketcher.Constraint("DistanceX", 0, 2, 0, 1, Q("0.25 in")))
sketch10.addConstraint(Sketcher.Constraint("DistanceX", 0, 2, -1, 1, Q("0.995 in")))
sketch10.addConstraint(Sketcher.Constraint("DistanceY", -1, 1, 0, 2, Q("1.279 in")))
pad7 = body.newObject("PartDesign::Pad", "Pad006")
pad7.Profile = sketch10
pad7.Length = Q("0.2 in")

sketch11 = body.newObject("Sketcher::SketchObject", "Sketch010")
sketch11.AttachmentSupport = (doc.getObject("XZ_Plane"), [""])
sketch11.MapMode = "FlatFace"
sketch11.AttachmentOffset = App.Placement(Vector(0, 0, 0.745 * 25.4), App.Rotation())
sketch11.addGeometry(Part.Circle(Vector(93.345, 24.8666, 0), Vector(0, 0, 1), 1.27), False)
sketch11.addConstraint(Sketcher.Constraint("Diameter", 0, Q("0.1 in")))
sketch11.addConstraint(Sketcher.Constraint("DistanceX", -1, 1, 0, 3, Q("3.675 in")))
sketch11.addConstraint(Sketcher.Constraint("DistanceY", -1, 1, 0, 3, Q("0.979 in")))
pocket4 = body.newObject("PartDesign::Pocket", "Pocket003")
pocket4.Profile = sketch11
pocket4.Type = "ThroughAll"
pocket4.Reversed = True

sketch12 = body.newObject("Sketcher::SketchObject", "Sketch011")
sketch12.AttachmentSupport = (doc.getObject("XY_Plane"), [""])
sketch12.MapMode = "FlatFace"
sketch12.AttachmentOffset = App.Placement(Vector(0, 0, 1.279 * 25.4), App.Rotation())
sketch12.addGeometry(Part.LineSegment(Vector(90.805, -18.923, 0), Vector(95.885, -18.923, 0)), False)
sketch12.addGeometry(Part.LineSegment(Vector(95.885, -18.923, 0), Vector(90.805, -13.843, 0)), False)
sketch12.addGeometry(Part.LineSegment(Vector(90.805, -13.843, 0), Vector(90.805, -18.923, 0)), False)
sketch12.addConstraint(Sketcher.Constraint("Coincident", 0, 2, 1, 1))
sketch12.addConstraint(Sketcher.Constraint("Coincident", 1, 2, 2, 1))
sketch12.addConstraint(Sketcher.Constraint("Coincident", 2, 2, 0, 1))
sketch12.addConstraint(Sketcher.Constraint("Horizontal", 0))
sketch12.addConstraint(Sketcher.Constraint("Vertical", 2))
sketch12.addConstraint(Sketcher.Constraint("Equal", 0, 2))
sketch12.addConstraint(Sketcher.Constraint("DistanceX", 0, 1, 0, 2, Q("0.2 in")))
sketch12.addConstraint(Sketcher.Constraint("DistanceX", -1, 1, 0, 2, Q("3.775 in")))
sketch12.addConstraint(Sketcher.Constraint("DistanceY", 0, 2, -1, 1, Q("0.745 in")))
pad8 = body.newObject("PartDesign::Pad", "Pad007")
pad8.Profile = sketch12
pad8.Length = Q("0.15 in")
pad8.Reversed = True

sketch13 = body.newObject("Sketcher::SketchObject", "Sketch012")
sketch13.AttachmentSupport = (doc.getObject("XY_Plane"), [""])
sketch13.MapMode = "FlatFace"
sketch13.AttachmentOffset = App.Placement(Vector(0, 0, 0.679 * 25.4), App.Rotation())
sketch13.addGeometry(Part.LineSegment(Vector(95.885, -18.923, 0), Vector(90.805, -18.923, 0)), False)
sketch13.addGeometry(Part.LineSegment(Vector(90.805, -18.923, 0), Vector(90.805, -13.843, 0)), False)
sketch13.addGeometry(Part.LineSegment(Vector(90.805, -13.843, 0), Vector(95.885, -18.923, 0)), False)
sketch13.addConstraint(Sketcher.Constraint("Coincident", 0, 2, 1, 1))
sketch13.addConstraint(Sketcher.Constraint("Coincident", 1, 2, 2, 1))
sketch13.addConstraint(Sketcher.Constraint("Coincident", 2, 2, 0, 1))
sketch13.addConstraint(Sketcher.Constraint("Horizontal", 0))
sketch13.addConstraint(Sketcher.Constraint("Vertical", 1))
sketch13.addConstraint(Sketcher.Constraint("Equal", 0, 1))
sketch13.addConstraint(Sketcher.Constraint("DistanceX", 0, 2, 0, 1, Q("0.2 in")))
sketch13.addConstraint(Sketcher.Constraint("DistanceX", -1, 1, 0, 2, Q("3.575 in")))
sketch13.addConstraint(Sketcher.Constraint("DistanceY", 0, 2, -1, 1, Q("0.745 in")))
pad9 = body.newObject("PartDesign::Pad", "Pad008")
pad9.Profile = sketch13
pad9.Length = Q("0.15 in")

doc.recompute()
